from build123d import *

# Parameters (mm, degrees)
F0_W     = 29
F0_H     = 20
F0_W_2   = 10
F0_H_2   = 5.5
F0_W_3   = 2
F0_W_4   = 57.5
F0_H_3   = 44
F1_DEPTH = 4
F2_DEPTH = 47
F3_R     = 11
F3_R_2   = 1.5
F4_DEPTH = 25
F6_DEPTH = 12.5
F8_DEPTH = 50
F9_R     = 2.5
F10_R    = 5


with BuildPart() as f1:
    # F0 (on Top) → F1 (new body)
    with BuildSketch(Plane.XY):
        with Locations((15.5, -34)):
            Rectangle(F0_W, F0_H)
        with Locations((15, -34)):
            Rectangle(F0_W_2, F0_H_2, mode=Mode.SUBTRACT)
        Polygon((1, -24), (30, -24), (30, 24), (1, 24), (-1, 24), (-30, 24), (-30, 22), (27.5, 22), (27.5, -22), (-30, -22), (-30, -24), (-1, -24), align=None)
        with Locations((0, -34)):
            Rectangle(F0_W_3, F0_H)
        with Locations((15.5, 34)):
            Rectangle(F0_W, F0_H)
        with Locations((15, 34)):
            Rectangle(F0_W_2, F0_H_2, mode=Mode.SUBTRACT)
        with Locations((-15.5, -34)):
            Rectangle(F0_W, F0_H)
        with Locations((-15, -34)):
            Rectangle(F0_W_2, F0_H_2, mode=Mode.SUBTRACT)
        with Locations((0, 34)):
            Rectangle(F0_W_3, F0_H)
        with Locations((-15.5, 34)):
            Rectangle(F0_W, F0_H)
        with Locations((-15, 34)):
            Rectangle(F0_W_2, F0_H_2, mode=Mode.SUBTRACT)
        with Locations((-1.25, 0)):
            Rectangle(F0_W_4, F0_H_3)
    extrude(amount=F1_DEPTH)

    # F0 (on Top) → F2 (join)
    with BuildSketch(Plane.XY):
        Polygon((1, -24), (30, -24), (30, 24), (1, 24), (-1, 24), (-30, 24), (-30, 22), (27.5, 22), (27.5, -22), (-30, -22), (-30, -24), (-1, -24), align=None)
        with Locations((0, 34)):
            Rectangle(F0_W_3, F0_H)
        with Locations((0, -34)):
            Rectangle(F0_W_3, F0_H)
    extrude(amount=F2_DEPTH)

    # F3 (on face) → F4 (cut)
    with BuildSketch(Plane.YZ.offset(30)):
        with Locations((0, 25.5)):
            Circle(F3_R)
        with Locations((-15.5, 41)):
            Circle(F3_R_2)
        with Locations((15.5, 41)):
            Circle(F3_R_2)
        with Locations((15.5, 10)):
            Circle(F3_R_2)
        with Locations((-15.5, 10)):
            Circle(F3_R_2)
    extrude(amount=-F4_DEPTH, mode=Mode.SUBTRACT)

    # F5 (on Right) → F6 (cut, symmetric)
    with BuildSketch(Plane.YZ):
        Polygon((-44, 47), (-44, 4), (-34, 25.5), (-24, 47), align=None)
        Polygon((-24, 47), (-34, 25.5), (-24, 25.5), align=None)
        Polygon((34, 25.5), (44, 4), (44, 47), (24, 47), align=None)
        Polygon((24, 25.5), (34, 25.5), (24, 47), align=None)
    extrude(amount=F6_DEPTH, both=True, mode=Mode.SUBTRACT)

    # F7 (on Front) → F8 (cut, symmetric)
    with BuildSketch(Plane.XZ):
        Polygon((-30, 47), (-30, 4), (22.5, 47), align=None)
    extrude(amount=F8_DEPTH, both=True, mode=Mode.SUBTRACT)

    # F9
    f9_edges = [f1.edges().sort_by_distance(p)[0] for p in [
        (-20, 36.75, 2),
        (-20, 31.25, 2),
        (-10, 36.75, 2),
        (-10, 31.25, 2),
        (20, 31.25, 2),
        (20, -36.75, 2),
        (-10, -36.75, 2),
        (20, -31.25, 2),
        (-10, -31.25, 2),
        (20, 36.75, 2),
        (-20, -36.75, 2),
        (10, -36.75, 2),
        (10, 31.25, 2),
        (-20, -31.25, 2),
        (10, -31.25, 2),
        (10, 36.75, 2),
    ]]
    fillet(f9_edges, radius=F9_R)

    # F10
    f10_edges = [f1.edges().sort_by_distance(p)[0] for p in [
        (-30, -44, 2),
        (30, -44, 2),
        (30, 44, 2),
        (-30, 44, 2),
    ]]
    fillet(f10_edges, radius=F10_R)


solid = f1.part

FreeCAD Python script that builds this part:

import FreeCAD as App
import Part
import Sketcher
from FreeCAD import Vector
Q = App.Units.Quantity


def edges_at(feature, points):
    """Names of the edges that pass closest to the given points."""
    edges = feature.Shape.Edges
    near = lambda p: min(range(len(edges)), key=lambda i: edges[i].distToShape(Part.Vertex(*p))[0])
    return sorted({f"Edge{near(p) + 1}" for p in points})

doc = App.newDocument("Part")
params = doc.addObject("Spreadsheet::Sheet", "Params")
for row, (alias, value) in enumerate([
    ("sketch1_width", "60 mm"),
    ("sketch1_width2", "10 mm"),
    ("sketch1_height", "88 mm"),
    ("sketch1_height2", "5.5 mm"),
    ("pad1_length", "4 mm"),
    ("sketch2_width", "29 mm"),
    ("sketch2_width2", "2 mm"),
    ("sketch2_height", "48 mm"),
    ("sketch2_height2", "20 mm"),
    ("sketch2_width3", "57.5 mm"),
    ("pad2_length", "47 mm"),
    ("sketch3_diameter", "22 mm"),
    ("sketch3_diameter2", "3 mm"),
    ("pocket1_length", "25 mm"),
    ("sketch4_width", "10 mm"),
    ("sketch4_width2", "20 mm"),
    ("sketch4_height", "43 mm"),
    ("sketch4_height2", "21.5 mm"),
    ("pocket2_length", "25 mm"),
    ("sketch5_height", "43 mm"),
    ("sketch5_width", "52.5 mm"),
    ("pocket3_length", "100 mm"),
    ("fillet_radius", "2.5 mm"),
    ("fillet2_radius", "5 mm"),
], start=1):
    params.set(f"A{row}", alias)
    params.set(f"B{row}", "=" + value)
    params.setAlias(f"B{row}", alias)

body = doc.addObject("PartDesign::Body", "Body")

# Sketch on XY plane
sketch1 = doc.addObject("Sketcher::SketchObject", "Sketch")
body.addObject(sketch1)
sketch1.AttachmentSupport = (doc.XY_Plane, [""])
sketch1.MapMode = "FlatFace"
sketch1.addGeometry([
    Part.LineSegment(Vector(30, -44, 0), Vector(30, 44, 0)),  # 0
    Part.LineSegment(Vector(30, 44, 0), Vector(-30, 44, 0)),  # 1
    Part.LineSegment(Vector(-30, 44, 0), Vector(-30, -44, 0)),  # 2
    Part.LineSegment(Vector(-30, -44, 0), Vector(30, -44, 0)),  # 3
    Part.LineSegment(Vector(-10, -36.75, 0), Vector(-20, -36.75, 0)),  # 4
    Part.LineSegment(Vector(-20, -36.75, 0), Vector(-20, -31.25, 0)),  # 5
    Part.LineSegment(Vector(-20, -31.25, 0), Vector(-10, -31.25, 0)),  # 6
    Part.LineSegment(Vector(-10, -31.25, 0), Vector(-10, -36.75, 0)),  # 7
    Part.LineSegment(Vector(20, -36.75, 0), Vector(10, -36.75, 0)),  # 8
    Part.LineSegment(Vector(10, -36.75, 0), Vector(10, -31.25, 0)),  # 9
    Part.LineSegment(Vector(10, -31.25, 0), Vector(20, -31.25, 0)),  # 10
    Part.LineSegment(Vector(20, -31.25, 0), Vector(20, -36.75, 0)),  # 11
    Part.LineSegment(Vector(-10, 31.25, 0), Vector(-20, 31.25, 0)),  # 12
    Part.LineSegment(Vector(-20, 31.25, 0), Vector(-20, 36.75, 0)),  # 13
    Part.LineSegment(Vector(-20, 36.75, 0), Vector(-10, 36.75, 0)),  # 14
    Part.LineSegment(Vector(-10, 36.75, 0), Vector(-10, 31.25, 0)),  # 15
    Part.LineSegment(Vector(20, 31.25, 0), Vector(10, 31.25, 0)),  # 16
    Part.LineSegment(Vector(10, 31.25, 0), Vector(10, 36.75, 0)),  # 17
    Part.LineSegment(Vector(10, 36.75, 0), Vector(20, 36.75, 0)),  # 18
    Part.LineSegment(Vector(20, 36.75, 0), Vector(20, 31.25, 0)),  # 19
], False)
sketch1.addConstraint([
    Sketcher.Constraint("Coincident", 0, 2, 1, 1),
    Sketcher.Constraint("Coincident", 1, 2, 2, 1),
    Sketcher.Constraint("Coincident", 2, 2, 3, 1),
    Sketcher.Constraint("Coincident", 3, 2, 0, 1),
    Sketcher.Constraint("Coincident", 4, 2, 5, 1),
    Sketcher.Constraint("Coincident", 5, 2, 6, 1),
    Sketcher.Constraint("Coincident", 6, 2, 7, 1),
    Sketcher.Constraint("Coincident", 7, 2, 4, 1),
    Sketcher.Constraint("Coincident", 8, 2, 9, 1),
    Sketcher.Constraint("Coincident", 9, 2, 10, 1),
    Sketcher.Constraint("Coincident", 10, 2, 11, 1),
    Sketcher.Constraint("Coincident", 11, 2, 8, 1),
    Sketcher.Constraint("Coincident", 12, 2, 13, 1),
    Sketcher.Constraint("Coincident", 13, 2, 14, 1),
    Sketcher.Constraint("Coincident", 14, 2, 15, 1),
    Sketcher.Constraint("Coincident", 15, 2, 12, 1),
    Sketcher.Constraint("Coincident", 16, 2, 17, 1),
    Sketcher.Constraint("Coincident", 17, 2, 18, 1),
    Sketcher.Constraint("Coincident", 18, 2, 19, 1),
    Sketcher.Constraint("Coincident", 19, 2, 16, 1),
    Sketcher.Constraint("Vertical", 0),
    Sketcher.Constraint("Horizontal", 1),
    Sketcher.Constraint("Vertical", 2),
    Sketcher.Constraint("Horizontal", 3),
    Sketcher.Constraint("Horizontal", 4),
    Sketcher.Constraint("Vertical", 5),
    Sketcher.Constraint("Horizontal", 6),
    Sketcher.Constraint("Vertical", 7),
    Sketcher.Constraint("Horizontal", 8),
    Sketcher.Constraint("Vertical", 9),
    Sketcher.Constraint("Horizontal", 10),
    Sketcher.Constraint("Vertical", 11),
    Sketcher.Constraint("Horizontal", 12),
    Sketcher.Constraint("Vertical", 13),
    Sketcher.Constraint("Horizontal", 14),
    Sketcher.Constraint("Vertical", 15),
    Sketcher.Constraint("Horizontal", 16),
    Sketcher.Constraint("Vertical", 17),
    Sketcher.Constraint("Horizontal", 18),
    Sketcher.Constraint("Vertical", 19),
    Sketcher.Constraint("Symmetric", 0, 2, 2, 2, -1, 1),
    Sketcher.Constraint("Symmetric", 10, 2, 12, 2, -1, 1),
    Sketcher.Constraint("Symmetric", 8, 2, 14, 2, -1, 1),
    Sketcher.Constraint("Symmetric", 6, 2, 16, 2, -1, 1),
    Sketcher.Constraint("Symmetric", 4, 2, 18, 2, -1, 1),
    Sketcher.Constraint("Symmetric", 7, 2, 8, 2, -2),
    Sketcher.Constraint("Symmetric", 5, 2, 10, 2, -2),
    Sketcher.Constraint("DistanceX", 1, 2, 1, 1, Q("60 mm")),
    Sketcher.Constraint("DistanceX", 4, 2, 4, 1, Q("10 mm")),
    Sketcher.Constraint("DistanceY", 0, 1, 0, 2, Q("88 mm")),
    Sketcher.Constraint("DistanceY", 5, 1, 5, 2, Q("5.5 mm")),
    Sketcher.Constraint("DistanceX", 4, 2, -1, 1, Q("20 mm")),
    Sketcher.Constraint("DistanceY", 4, 2, 12, 2, Q("68 mm")),
])
sketch1.setExpression("Constraints[47]", "Params.sketch1_width")
sketch1.setExpression("Constraints[48]", "Params.sketch1_width2")
sketch1.setExpression("Constraints[49]", "Params.sketch1_height")
sketch1.setExpression("Constraints[50]", "Params.sketch1_height2")
pad1 = doc.addObject("PartDesign::Pad", "Pad")
body.addObject(pad1)
pad1.Profile = sketch1
pad1.setExpression("Length", "Params.pad1_length")

# Sketch on XY plane
sketch2 = doc.addObject("Sketcher::SketchObject", "Sketch001")
body.addObject(sketch2)
sketch2.AttachmentSupport = (doc.XY_Plane, [""])
sketch2.MapMode = "FlatFace"
sketch2.addGeometry([
    Part.LineSegment(Vector(30, -24, 0), Vector(30, 24, 0)),  # 0
    Part.LineSegment(Vector(30, 24, 0), Vector(1, 24, 0)),  # 1
    Part.LineSegment(Vector(1, 24, 0), Vector(1, 44, 0)),  # 2
    Part.LineSegment(Vector(1, 44, 0), Vector(-1, 44, 0)),  # 3
    Part.LineSegment(Vector(-1, 44, 0), Vector(-1, 24, 0)),  # 4
    Part.LineSegment(Vector(-1, 24, 0), Vector(-30, 24, 0)),  # 5
    Part.LineSegment(Vector(-30, 24, 0), Vector(-30, 22, 0)),  # 6
    Part.LineSegment(Vector(-30, 22, 0), Vector(27.5, 22, 0)),  # 7
    Part.LineSegment(Vector(27.5, 22, 0), Vector(27.5, -22, 0)),  # 8
    Part.LineSegment(Vector(27.5, -22, 0), Vector(-30, -22, 0)),  # 9
    Part.LineSegment(Vector(-30, -22, 0), Vector(-30, -24, 0)),  # 10
    Part.LineSegment(Vector(-30, -24, 0), Vector(-1, -24, 0)),  # 11
    Part.LineSegment(Vector(-1, -24, 0), Vector(-1, -44, 0)),  # 12
    Part.LineSegment(Vector(-1, -44, 0), Vector(1, -44, 0)),  # 13
    Part.LineSegment(Vector(1, -44, 0), Vector(1, -24, 0)),  # 14
    Part.LineSegment(Vector(1, -24, 0), Vector(30, -24, 0)),  # 15
], False)
sketch2.addConstraint([
    Sketcher.Constraint("Coincident", 0, 2, 1, 1),
    Sketcher.Constraint("Coincident", 1, 2, 2, 1),
    Sketcher.Constraint("Coincident", 2, 2, 3, 1),
    Sketcher.Constraint("Coincident", 3, 2, 4, 1),
    Sketcher.Constraint("Coincident", 4, 2, 5, 1),
    Sketcher.Constraint("Coincident", 5, 2, 6, 1),
    Sketcher.Constraint("Coincident", 6, 2, 7, 1),
    Sketcher.Constraint("Coincident", 7, 2, 8, 1),
    Sketcher.Constraint("Coincident", 8, 2, 9, 1),
    Sketcher.Constraint("Coincident", 9, 2, 10, 1),
    Sketcher.Constraint("Coincident", 10, 2, 11, 1),
    Sketcher.Constraint("Coincident", 11, 2, 12, 1),
    Sketcher.Constraint("Coincident", 12, 2, 13, 1),
    Sketcher.Constraint("Coincident", 13, 2, 14, 1),
    Sketcher.Constraint("Coincident", 14, 2, 15, 1),
    Sketcher.Constraint("Coincident", 15, 2, 0, 1),
    Sketcher.Constraint("Vertical", 0),
    Sketcher.Constraint("Horizontal", 1),
    Sketcher.Constraint("Vertical", 2),
    Sketcher.Constraint("Horizontal", 3),
    Sketcher.Constraint("Vertical", 4),
    Sketcher.Constraint("Horizontal", 5),
    Sketcher.Constraint("Vertical", 6),
    Sketcher.Constraint("Horizontal", 7),
    Sketcher.Constraint("Vertical", 8),
    Sketcher.Constraint("Horizontal", 9),
    Sketcher.Constraint("Vertical", 10),
    Sketcher.Constraint("Horizontal", 11),
    Sketcher.Constraint("Vertical", 12),
    Sketcher.Constraint("Horizontal", 13),
    Sketcher.Constraint("Vertical", 14),
    Sketcher.Constraint("Horizontal", 15),
    Sketcher.Constraint("Symmetric", 0, 2, 10, 2, -1, 1),
    Sketcher.Constraint("Symmetric", 2, 2, 12, 2, -1, 1),
    Sketcher.Constraint("Symmetric", 4, 2, 14, 2, -1, 1),
    Sketcher.Constraint("Symmetric", 1, 2, 4, 2, -2),
    Sketcher.Constraint("Symmetric", 6, 2, 9, 2, -1),
    Sketcher.Constraint("Equal", 13, 6),
    Sketcher.Constraint("DistanceX", 1, 2, 1, 1, Q("29 mm")),
    Sketcher.Constraint("DistanceX", 3, 2, 3, 1, Q("2 mm")),
    Sketcher.Constraint("DistanceY", 0, 1, 0, 2, Q("48 mm")),
    Sketcher.Constraint("DistanceY", 2, 1, 2, 2, Q("20 mm")),
    Sketcher.Constraint("DistanceX", 7, 1, 7, 2, Q("57.5 mm")),
])
sketch2.setExpression("Constraints[38]", "Params.sketch2_width")
sketch2.setExpression("Constraints[39]", "Params.sketch2_width2")
sketch2.setExpression("Constraints[40]", "Params.sketch2_height")
sketch2.setExpression("Constraints[41]", "Params.sketch2_height2")
sketch2.setExpression("Constraints[42]", "Params.sketch2_width3")
pad2 = doc.addObject("PartDesign::Pad", "Pad001")
body.addObject(pad2)
pad2.Profile = sketch2
pad2.setExpression("Length", "Params.pad2_length")

# Sketch on YZ plane
sketch3 = doc.addObject("Sketcher::SketchObject", "Sketch002")
body.addObject(sketch3)
sketch3.AttachmentSupport = (doc.YZ_Plane, [""])
sketch3.MapMode = "FlatFace"
sketch3.AttachmentOffset = App.Placement(Vector(0, 0, 30), App.Rotation())
sketch3.addGeometry([
    Part.Circle(Vector(0, 25.5, 0), Vector(0, 0, 1), 11),  # 0
    Part.Circle(Vector(-15.5, 41, 0), Vector(0, 0, 1), 1.5),  # 1
    Part.Circle(Vector(15.5, 41, 0), Vector(0, 0, 1), 1.5),  # 2
    Part.Circle(Vector(15.5, 10, 0), Vector(0, 0, 1), 1.5),  # 3
    Part.Circle(Vector(-15.5, 10, 0), Vector(0, 0, 1), 1.5),  # 4
], False)
sketch3.addConstraint([
    Sketcher.Constraint("Equal", 1, 2),
    Sketcher.Constraint("Equal", 2, 3),
    Sketcher.Constraint("Equal", 3, 4),
    Sketcher.Constraint("Symmetric", 1, 3, 2, 3, -2),
    Sketcher.Constraint("Symmetric", 3, 3, 4, 3, -2),
    Sketcher.Constraint("PointOnObject", 0, 3, -2),
    Sketcher.Constraint("Vertical", 2, 3, 3, 3),
    Sketcher.Constraint("Diameter", 0, Q("22 mm")),
    Sketcher.Constraint("Diameter", 1, Q("3 mm")),
    Sketcher.Constraint("DistanceY", -1, 1, 1, 3, Q("41 mm")),
    Sketcher.Constraint("DistanceY", -1, 1, 3, 3, Q("10 mm")),
    Sketcher.Constraint("DistanceX", 1, 3, 2, 3, Q("31 mm")),
    Sketcher.Constraint("DistanceY", -1, 1, 0, 3, Q("25.5 mm")),
])
sketch3.setExpression("Constraints[7]", "Params.sketch3_diameter")
sketch3.setExpression("Constraints[8]", "Params.sketch3_diameter2")
pocket1 = doc.addObject("PartDesign::Pocket", "Pocket")
body.addObject(pocket1)
pocket1.Profile = sketch3
pocket1.setExpression("Length", "Params.pocket1_length")

# Sketch on YZ plane
sketch4 = doc.addObject("Sketcher::SketchObject", "Sketch003")
body.addObject(sketch4)
sketch4.AttachmentSupport = (doc.YZ_Plane, [""])
sketch4.MapMode = "FlatFace"
sketch4.addGeometry([
    Part.LineSegment(Vector(-44, 47, 0), Vector(-44, 4, 0)),  # 0
    Part.LineSegment(Vector(-44, 4, 0), Vector(-34, 25.5, 0)),  # 1
    Part.LineSegment(Vector(-34, 25.5, 0), Vector(-24, 25.5, 0)),  # 2
    Part.LineSegment(Vector(-24, 25.5, 0), Vector(-24, 47, 0)),  # 3
    Part.LineSegment(Vector(-24, 47, 0), Vector(-44, 47, 0)),  # 4
    Part.LineSegment(Vector(44, 4, 0), Vector(44, 47, 0)),  # 5
    Part.LineSegment(Vector(44, 47, 0), Vector(24, 47, 0)),  # 6
    Part.LineSegment(Vector(24, 47, 0), Vector(24, 25.5, 0)),  # 7
    Part.LineSegment(Vector(24, 25.5, 0), Vector(34, 25.5, 0)),  # 8
    Part.LineSegment(Vector(34, 25.5, 0), Vector(44, 4, 0)),  # 9
], False)
sketch4.addConstraint([
    Sketcher.Constraint("Coincident", 0, 2, 1, 1),
    Sketcher.Constraint("Coincident", 1, 2, 2, 1),
    Sketcher.Constraint("Coincident", 2, 2, 3, 1),
    Sketcher.Constraint("Coincident", 3, 2, 4, 1),
    Sketcher.Constraint("Coincident", 4, 2, 0, 1),
    Sketcher.Constraint("Coincident", 5, 2, 6, 1),
    Sketcher.Constraint("Coincident", 6, 2, 7, 1),
    Sketcher.Constraint("Coincident", 7, 2, 8, 1),
    Sketcher.Constraint("Coincident", 8, 2, 9, 1),
    Sketcher.Constraint("Coincident", 9, 2, 5, 1),
    Sketcher.Constraint("Vertical", 0),
    Sketcher.Constraint("Horizontal", 2),
    Sketcher.Constraint("Vertical", 3),
    Sketcher.Constraint("Horizontal", 4),
    Sketcher.Constraint("Vertical", 5),
    Sketcher.Constraint("Horizontal", 6),
    Sketcher.Constraint("Vertical", 7),
    Sketcher.Constraint("Horizontal", 8),
    Sketcher.Constraint("Symmetric", 4, 2, 5, 2, -2),
    Sketcher.Constraint("Symmetric", 2, 2, 7, 2, -2),
    Sketcher.Constraint("Horizontal", 0, 2, 9, 2),
    Sketcher.Constraint("Equal", 2, 8),
    Sketcher.Constraint("DistanceX", 2, 1, 2, 2, Q("10 mm")),
    Sketcher.Constraint("DistanceX", 4, 2, 4, 1, Q("20 mm")),
    Sketcher.Constraint("DistanceY", 0, 2, 0, 1, Q("43 mm")),
    Sketcher.Constraint("DistanceY", 3, 1, 3, 2, Q("21.5 mm")),
    Sketcher.Constraint("DistanceX", 0, 2, -1, 1, Q("44 mm")),
    Sketcher.Constraint("DistanceY", -1, 1, 0, 2, Q("4 mm")),
])
sketch4.setExpression("Constraints[22]", "Params.sketch4_width")
sketch4.setExpression("Constraints[23]", "Params.sketch4_width2")
sketch4.setExpression("Constraints[24]", "Params.sketch4_height")
sketch4.setExpression("Constraints[25]", "Params.sketch4_height2")
pocket2 = doc.addObject("PartDesign::Pocket", "Pocket001")
body.addObject(pocket2)
pocket2.Profile = sketch4
pocket2.setExpression("Length", "Params.pocket2_length")
pocket2.Midplane = True

# Sketch on XZ plane
sketch5 = doc.addObject("Sketcher::SketchObject", "Sketch004")
body.addObject(sketch5)
sketch5.AttachmentSupport = (doc.XZ_Plane, [""])
sketch5.MapMode = "FlatFace"
sketch5.addGeometry([
    Part.LineSegment(Vector(-30, 47, 0), Vector(-30, 4, 0)),
    Part.LineSegment(Vector(-30, 4, 0), Vector(22.5, 47, 0)),
    Part.LineSegment(Vector(22.5, 47, 0), Vector(-30, 47, 0)),
], False)
sketch5.addConstraint([
    Sketcher.Constraint("Coincident", 0, 2, 1, 1),
    Sketcher.Constraint("Coincident", 1, 2, 2, 1),
    Sketcher.Constraint("Coincident", 2, 2, 0, 1),
    Sketcher.Constraint("Vertical", 0),
    Sketcher.Constraint("Horizontal", 2),
    Sketcher.Constraint("DistanceY", 0, 2, 0, 1, Q("43 mm")),
    Sketcher.Constraint("DistanceX", 2, 2, 2, 1, Q("52.5 mm")),
    Sketcher.Constraint("DistanceX", 0, 2, -1, 1, Q("30 mm")),
    Sketcher.Constraint("DistanceY", -1, 1, 0, 2, Q("4 mm")),
])
sketch5.setExpression("Constraints[5]", "Params.sketch5_height")
sketch5.setExpression("Constraints[6]", "Params.sketch5_width")
pocket3 = doc.addObject("PartDesign::Pocket", "Pocket002")
body.addObject(pocket3)
pocket3.Profile = sketch5
pocket3.setExpression("Length", "Params.pocket3_length")
pocket3.Midplane = True
doc.recompute()

fillet = doc.addObject("PartDesign::Fillet", "Fillet")
body.addObject(fillet)
fillet.Base = (pocket3, edges_at(pocket3, [
    (-20, 36.75, 2),
    (-20, 31.25, 2),
    (-10, 36.75, 2),
    (-10, 31.25, 2),
    (20, 31.25, 2),
    (20, -36.75, 2),
    (-10, -36.75, 2),
    (20, -31.25, 2),
    (-10, -31.25, 2),
    (20, 36.75, 2),
    (-20, -36.75, 2),
    (10, -36.75, 2),
    (10, 31.25, 2),
    (-20, -31.25, 2),
    (10, -31.25, 2),
    (10, 36.75, 2),
]))
fillet.setExpression("Radius", "Params.fillet_radius")
doc.recompute()

fillet2 = doc.addObject("PartDesign::Fillet", "Fillet001")
body.addObject(fillet2)
fillet2.Base = (fillet, edges_at(fillet, [
    (-30, -44, 2),
    (30, -44, 2),
    (30, 44, 2),
    (-30, 44, 2),
]))
fillet2.setExpression("Radius", "Params.fillet2_radius")

doc.recompute()
